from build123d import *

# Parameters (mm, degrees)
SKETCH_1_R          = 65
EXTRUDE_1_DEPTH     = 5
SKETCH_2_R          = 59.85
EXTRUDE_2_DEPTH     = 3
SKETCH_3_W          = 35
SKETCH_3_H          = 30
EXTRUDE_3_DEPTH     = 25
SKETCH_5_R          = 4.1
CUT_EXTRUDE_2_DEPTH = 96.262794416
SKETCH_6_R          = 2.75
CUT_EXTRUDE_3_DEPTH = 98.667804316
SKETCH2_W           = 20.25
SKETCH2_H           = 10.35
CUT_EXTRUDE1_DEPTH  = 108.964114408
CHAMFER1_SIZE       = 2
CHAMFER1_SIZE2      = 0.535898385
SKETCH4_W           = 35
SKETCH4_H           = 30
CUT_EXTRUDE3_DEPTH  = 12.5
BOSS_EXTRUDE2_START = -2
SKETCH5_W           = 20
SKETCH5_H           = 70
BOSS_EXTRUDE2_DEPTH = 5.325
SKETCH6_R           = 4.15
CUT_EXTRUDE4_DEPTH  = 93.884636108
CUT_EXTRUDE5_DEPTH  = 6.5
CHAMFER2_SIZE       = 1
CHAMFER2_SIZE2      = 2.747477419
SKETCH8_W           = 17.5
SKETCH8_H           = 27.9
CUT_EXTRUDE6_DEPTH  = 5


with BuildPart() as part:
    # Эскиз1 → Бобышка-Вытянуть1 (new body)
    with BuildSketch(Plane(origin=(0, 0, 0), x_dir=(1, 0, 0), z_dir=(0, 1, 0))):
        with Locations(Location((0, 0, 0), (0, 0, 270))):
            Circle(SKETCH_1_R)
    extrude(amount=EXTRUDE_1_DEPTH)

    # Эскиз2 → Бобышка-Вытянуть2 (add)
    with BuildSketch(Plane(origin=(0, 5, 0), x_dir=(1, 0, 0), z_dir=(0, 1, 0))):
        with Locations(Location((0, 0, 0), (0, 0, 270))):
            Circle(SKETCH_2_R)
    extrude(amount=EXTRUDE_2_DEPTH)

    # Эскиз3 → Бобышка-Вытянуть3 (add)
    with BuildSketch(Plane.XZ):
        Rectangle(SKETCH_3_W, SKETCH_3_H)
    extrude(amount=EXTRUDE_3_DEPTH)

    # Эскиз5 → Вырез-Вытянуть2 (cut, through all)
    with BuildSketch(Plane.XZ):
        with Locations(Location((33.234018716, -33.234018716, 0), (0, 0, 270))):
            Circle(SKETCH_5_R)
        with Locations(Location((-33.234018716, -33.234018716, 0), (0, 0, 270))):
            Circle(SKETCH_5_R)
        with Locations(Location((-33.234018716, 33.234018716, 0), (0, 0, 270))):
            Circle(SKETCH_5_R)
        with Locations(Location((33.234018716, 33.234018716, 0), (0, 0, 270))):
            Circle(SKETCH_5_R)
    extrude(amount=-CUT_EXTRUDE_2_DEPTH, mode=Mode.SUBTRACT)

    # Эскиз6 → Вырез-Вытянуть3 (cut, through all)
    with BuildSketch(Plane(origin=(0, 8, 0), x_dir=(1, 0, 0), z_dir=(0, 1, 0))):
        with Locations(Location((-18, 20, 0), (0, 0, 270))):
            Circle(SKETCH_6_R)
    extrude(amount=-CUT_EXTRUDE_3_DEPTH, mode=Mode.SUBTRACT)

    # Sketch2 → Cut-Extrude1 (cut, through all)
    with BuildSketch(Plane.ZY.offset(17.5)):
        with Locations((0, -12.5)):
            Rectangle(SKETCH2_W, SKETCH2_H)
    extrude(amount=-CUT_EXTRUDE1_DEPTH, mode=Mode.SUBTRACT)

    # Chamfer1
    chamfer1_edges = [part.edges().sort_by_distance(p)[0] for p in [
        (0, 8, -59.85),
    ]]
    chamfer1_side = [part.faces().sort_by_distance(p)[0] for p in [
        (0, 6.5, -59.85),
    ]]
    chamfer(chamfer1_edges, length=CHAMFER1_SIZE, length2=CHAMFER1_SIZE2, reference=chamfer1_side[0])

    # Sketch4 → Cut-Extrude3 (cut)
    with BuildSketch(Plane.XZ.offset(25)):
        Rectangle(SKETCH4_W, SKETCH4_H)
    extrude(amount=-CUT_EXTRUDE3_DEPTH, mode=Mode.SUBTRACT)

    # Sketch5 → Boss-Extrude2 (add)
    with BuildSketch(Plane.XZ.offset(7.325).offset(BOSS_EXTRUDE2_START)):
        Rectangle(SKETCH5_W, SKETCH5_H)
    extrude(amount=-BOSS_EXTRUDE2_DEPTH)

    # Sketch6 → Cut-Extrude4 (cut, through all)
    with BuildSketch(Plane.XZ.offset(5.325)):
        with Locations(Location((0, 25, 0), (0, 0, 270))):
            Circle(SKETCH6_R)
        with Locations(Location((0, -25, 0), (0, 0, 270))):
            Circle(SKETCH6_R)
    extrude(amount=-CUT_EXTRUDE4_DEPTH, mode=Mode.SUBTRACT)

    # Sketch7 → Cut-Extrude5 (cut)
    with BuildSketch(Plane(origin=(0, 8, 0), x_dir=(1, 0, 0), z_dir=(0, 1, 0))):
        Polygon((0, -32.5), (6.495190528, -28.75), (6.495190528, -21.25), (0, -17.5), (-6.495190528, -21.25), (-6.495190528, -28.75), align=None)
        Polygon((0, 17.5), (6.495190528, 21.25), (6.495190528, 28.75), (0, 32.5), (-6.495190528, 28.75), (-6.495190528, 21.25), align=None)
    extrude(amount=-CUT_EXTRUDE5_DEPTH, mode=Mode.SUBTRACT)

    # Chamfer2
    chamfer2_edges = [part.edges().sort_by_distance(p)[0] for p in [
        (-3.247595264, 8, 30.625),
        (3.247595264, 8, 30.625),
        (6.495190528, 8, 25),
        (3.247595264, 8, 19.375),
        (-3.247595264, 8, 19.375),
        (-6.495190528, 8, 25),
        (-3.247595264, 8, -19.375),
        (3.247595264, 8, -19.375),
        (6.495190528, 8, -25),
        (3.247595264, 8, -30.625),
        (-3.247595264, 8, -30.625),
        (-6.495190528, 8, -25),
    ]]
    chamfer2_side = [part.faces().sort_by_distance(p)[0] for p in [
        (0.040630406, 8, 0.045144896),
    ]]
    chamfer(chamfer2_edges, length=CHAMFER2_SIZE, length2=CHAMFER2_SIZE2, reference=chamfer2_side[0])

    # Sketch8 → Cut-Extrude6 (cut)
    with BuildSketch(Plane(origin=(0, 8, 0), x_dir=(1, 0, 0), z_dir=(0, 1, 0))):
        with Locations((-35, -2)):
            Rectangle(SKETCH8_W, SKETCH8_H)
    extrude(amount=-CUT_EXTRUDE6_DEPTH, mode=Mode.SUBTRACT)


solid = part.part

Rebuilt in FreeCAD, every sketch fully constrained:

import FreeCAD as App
import Part
import Sketcher
from FreeCAD import Vector
Q = App.Units.Quantity


def edges_at(feature, points):
    """Names of the edges that pass closest to the given points."""
    edges = feature.Shape.Edges
    near = lambda p: min(range(len(edges)), key=lambda i: edges[i].distToShape(Part.Vertex(*p))[0])
    return sorted({f"Edge{near(p) + 1}" for p in points})

doc = App.newDocument("Part")
body = doc.addObject("PartDesign::Body", "Body")

# Sketch on XZ plane
sketch1 = doc.addObject("Sketcher::SketchObject", "Sketch")
body.addObject(sketch1)
sketch1.AttachmentSupport = (doc.XZ_Plane, [""])
sketch1.MapMode = "FlatFace"
sketch1.addGeometry(Part.Circle(Vector(0, 0, 0), Vector(0, 0, 1), 65), False)
sketch1.addConstraint([
    Sketcher.Constraint("Coincident", 0, 3, -1, 1),
    Sketcher.Constraint("Diameter", 0, 130.0),
])
pad1 = doc.addObject("PartDesign::Pad", "Pad")
body.addObject(pad1)
pad1.Profile = sketch1
pad1.Length = 5
pad1.Reversed = True

# Sketch on XZ plane
sketch2 = doc.addObject("Sketcher::SketchObject", "Sketch001")
body.addObject(sketch2)
sketch2.AttachmentSupport = (doc.XZ_Plane, [""])
sketch2.MapMode = "FlatFace"
sketch2.AttachmentOffset = App.Placement(Vector(0, 0, -5), App.Rotation())
sketch2.addGeometry(Part.Circle(Vector(0, 0, 0), Vector(0, 0, 1), 60), False)
sketch2.addConstraint([
    Sketcher.Constraint("Coincident", 0, 3, -1, 1),
    Sketcher.Constraint("Diameter", 0, 119.7),
])
pad2 = doc.addObject("PartDesign::Pad", "Pad001")
body.addObject(pad2)
pad2.Profile = sketch2
pad2.Length = 3
pad2.Reversed = True

# Sketch on XZ plane
sketch3 = doc.addObject("Sketcher::SketchObject", "Sketch002")
body.addObject(sketch3)
sketch3.AttachmentSupport = (doc.XZ_Plane, [""])
sketch3.MapMode = "FlatFace"
sketch3.addGeometry([
    Part.LineSegment(Vector(-18, 15, 0), Vector(-18, -15, 0)),
    Part.LineSegment(Vector(-18, -15, 0), Vector(18, -15, 0)),
    Part.LineSegment(Vector(18, -15, 0), Vector(18, 15, 0)),
    Part.LineSegment(Vector(18, 15, 0), Vector(-18, 15, 0)),
], False)
sketch3.addConstraint([
    Sketcher.Constraint("Coincident", 0, 2, 1, 1),
    Sketcher.Constraint("Coincident", 1, 2, 2, 1),
    Sketcher.Constraint("Coincident", 2, 2, 3, 1),
    Sketcher.Constraint("Coincident", 3, 2, 0, 1),
    Sketcher.Constraint("Vertical", 0),
    Sketcher.Constraint("Horizontal", 1),
    Sketcher.Constraint("Vertical", 2),
    Sketcher.Constraint("Horizontal", 3),
    Sketcher.Constraint("Symmetric", 0, 2, 2, 2, -1, 1),
    Sketcher.Constraint("DistanceX", 1, 1, 1, 2, 35.0),
    Sketcher.Constraint("DistanceY", 0, 2, 0, 1, 30.0),
])
pad3 = doc.addObject("PartDesign::Pad", "Pad002")
body.addObject(pad3)
pad3.Profile = sketch3
pad3.Length = 25

# Sketch on XZ plane
sketch4 = doc.addObject("Sketcher::SketchObject", "Sketch003")
body.addObject(sketch4)
sketch4.AttachmentSupport = (doc.XZ_Plane, [""])
sketch4.MapMode = "FlatFace"
sketch4.addGeometry([
    Part.Circle(Vector(33.2, -33.2, 0), Vector(0, 0, 1), 4.1),
    Part.Circle(Vector(-33.2, -33.2, 0), Vector(0, 0, 1), 4.1),
    Part.Circle(Vector(-33.2, 33.2, 0), Vector(0, 0, 1), 4.1),
    Part.Circle(Vector(33.2, 33.2, 0), Vector(0, 0, 1), 4.1),
], False)
sketch4.addConstraint([
    Sketcher.Constraint("Equal", 0, 1),
    Sketcher.Constraint("Equal", 1, 2),
    Sketcher.Constraint("Equal", 2, 3),
    Sketcher.Constraint("Symmetric", 0, 3, 2, 3, -1, 1),
    Sketcher.Constraint("Symmetric", 1, 3, 3, 3, -1, 1),
    Sketcher.Constraint("Symmetric", 0, 3, 1, 3, -2),
    Sketcher.Constraint("Diameter", 0, 8.2),
    Sketcher.Constraint("DistanceX", -1, 1, 0, 3, 33.234019),
    Sketcher.Constraint("DistanceY", 0, 3, -1, 1, 33.234019),
])
pocket1 = doc.addObject("PartDesign::Pocket", "Pocket")
body.addObject(pocket1)
pocket1.Profile = sketch4
pocket1.Type = "ThroughAll"

# Sketch on XZ plane
sketch5 = doc.addObject("Sketcher::SketchObject", "Sketch004")
body.addObject(sketch5)
sketch5.AttachmentSupport = (doc.XZ_Plane, [""])
sketch5.MapMode = "FlatFace"
sketch5.AttachmentOffset = App.Placement(Vector(0, 0, -8), App.Rotation())
sketch5.addGeometry(Part.Circle(Vector(-18, -20, 0), Vector(0, 0, 1), 2.8), False)
sketch5.addConstraint([
    Sketcher.Constraint("Diameter", 0, 5.5),
    Sketcher.Constraint("DistanceX", 0, 3, -1, 1, 18.0),
    Sketcher.Constraint("DistanceY", 0, 3, -1, 1, 20.0),
])
pocket2 = doc.addObject("PartDesign::Pocket", "Pocket001")
body.addObject(pocket2)
pocket2.Profile = sketch5
pocket2.Type = "ThroughAll"
pocket2.Reversed = True

# Sketch on YZ plane
sketch6 = doc.addObject("Sketcher::SketchObject", "Sketch005")
body.addObject(sketch6)
sketch6.AttachmentSupport = (doc.YZ_Plane, [""])
sketch6.MapMode = "FlatFace"
sketch6.AttachmentOffset = App.Placement(Vector(0, 0, -17.5), App.Rotation())
sketch6.addGeometry([
    Part.LineSegment(Vector(-7, -10, 0), Vector(-18, -10, 0)),
    Part.LineSegment(Vector(-18, -10, 0), Vector(-18, 10, 0)),
    Part.LineSegment(Vector(-18, 10, 0), Vector(-7, 10, 0)),
    Part.LineSegment(Vector(-7, 10, 0), Vector(-7, -10, 0)),
], False)
sketch6.addConstraint([
    Sketcher.Constraint("Coincident", 0, 2, 1, 1),
    Sketcher.Constraint("Coincident", 1, 2, 2, 1),
    Sketcher.Constraint("Coincident", 2, 2, 3, 1),
    Sketcher.Constraint("Coincident", 3, 2, 0, 1),
    Sketcher.Constraint("Horizontal", 0),
    Sketcher.Constraint("Vertical", 1),
    Sketcher.Constraint("Horizontal", 2),
    Sketcher.Constraint("Vertical", 3),
    Sketcher.Constraint("DistanceX", 0, 2, 0, 1, 10.35),
    Sketcher.Constraint("DistanceY", 1, 1, 1, 2, 20.25),
    Sketcher.Constraint("DistanceX", 0, 2, -1, 1, 17.675),
    Sketcher.Constraint("DistanceY", 0, 2, -1, 1, 10.125),
])
pocket3 = doc.addObject("PartDesign::Pocket", "Pocket002")
body.addObject(pocket3)
pocket3.Profile = sketch6
pocket3.Type = "ThroughAll"
pocket3.Reversed = True
doc.recompute()

chamfer = doc.addObject("PartDesign::Chamfer", "Chamfer")
body.addObject(chamfer)
chamfer.Base = (pocket3, edges_at(pocket3, [(0, 8, -59.85)]))
chamfer.ChamferType = "Two distances"
chamfer.Size = 2
chamfer.Size2 = 0.535898

# Sketch on XZ plane
sketch7 = doc.addObject("Sketcher::SketchObject", "Sketch006")
body.addObject(sketch7)
sketch7.AttachmentSupport = (doc.XZ_Plane, [""])
sketch7.MapMode = "FlatFace"
sketch7.AttachmentOffset = App.Placement(Vector(0, 0, 25), App.Rotation())
sketch7.addGeometry([
    Part.LineSegment(Vector(-18, 15, 0), Vector(-18, -15, 0)),
    Part.LineSegment(Vector(-18, -15, 0), Vector(18, -15, 0)),
    Part.LineSegment(Vector(18, -15, 0), Vector(18, 15, 0)),
    Part.LineSegment(Vector(18, 15, 0), Vector(-18, 15, 0)),
], False)
sketch7.addConstraint([
    Sketcher.Constraint("Coincident", 0, 2, 1, 1),
    Sketcher.Constraint("Coincident", 1, 2, 2, 1),
    Sketcher.Constraint("Coincident", 2, 2, 3, 1),
    Sketcher.Constraint("Coincident", 3, 2, 0, 1),
    Sketcher.Constraint("Vertical", 0),
    Sketcher.Constraint("Horizontal", 1),
    Sketcher.Constraint("Vertical", 2),
    Sketcher.Constraint("Horizontal", 3),
    Sketcher.Constraint("Symmetric", 0, 2, 2, 2, -1, 1),
    Sketcher.Constraint("DistanceX", 1, 1, 1, 2, 35.0),
    Sketcher.Constraint("DistanceY", 0, 2, 0, 1, 30.0),
])
pocket4 = doc.addObject("PartDesign::Pocket", "Pocket003")
body.addObject(pocket4)
pocket4.Profile = sketch7
pocket4.Length = 12.5

# Sketch on XZ plane
sketch8 = doc.addObject("Sketcher::SketchObject", "Sketch007")
body.addObject(sketch8)
sketch8.AttachmentSupport = (doc.XZ_Plane, [""])
sketch8.MapMode = "FlatFace"
sketch8.AttachmentOffset = App.Placement(Vector(0, 0, 5.325), App.Rotation())
sketch8.addGeometry([
    Part.LineSegment(Vector(-10, 35, 0), Vector(-10, -35, 0)),
    Part.LineSegment(Vector(-10, -35, 0), Vector(10, -35, 0)),
    Part.LineSegment(Vector(10, -35, 0), Vector(10, 35, 0)),
    Part.LineSegment(Vector(10, 35, 0), Vector(-10, 35, 0)),
], False)
sketch8.addConstraint([
    Sketcher.Constraint("Coincident", 0, 2, 1, 1),
    Sketcher.Constraint("Coincident", 1, 2, 2, 1),
    Sketcher.Constraint("Coincident", 2, 2, 3, 1),
    Sketcher.Constraint("Coincident", 3, 2, 0, 1),
    Sketcher.Constraint("Vertical", 0),
    Sketcher.Constraint("Horizontal", 1),
    Sketcher.Constraint("Vertical", 2),
    Sketcher.Constraint("Horizontal", 3),
    Sketcher.Constraint("Symmetric", 0, 2, 2, 2, -1, 1),
    Sketcher.Constraint("DistanceX", 1, 1, 1, 2, 20.0),
    Sketcher.Constraint("DistanceY", 0, 2, 0, 1, 70.0),
])
pad4 = doc.addObject("PartDesign::Pad", "Pad003")
body.addObject(pad4)
pad4.Profile = sketch8
pad4.Length = 5.325
pad4.Reversed = True

# Sketch on XZ plane
sketch9 = doc.addObject("Sketcher::SketchObject", "Sketch008")
body.addObject(sketch9)
sketch9.AttachmentSupport = (doc.XZ_Plane, [""])
sketch9.MapMode = "FlatFace"
sketch9.AttachmentOffset = App.Placement(Vector(0, 0, 5.325), App.Rotation())
sketch9.addGeometry([
    Part.Circle(Vector(0, 25, 0), Vector(0, 0, 1), 4.2),
    Part.Circle(Vector(0, -25, 0), Vector(0, 0, 1), 4.2),
], False)
sketch9.addConstraint([
    Sketcher.Constraint("Equal", 0, 1),
    Sketcher.Constraint("Symmetric", 0, 3, 1, 3, -1, 1),
    Sketcher.Constraint("PointOnObject", 0, 3, -2),
    Sketcher.Constraint("Diameter", 0, 8.3),
    Sketcher.Constraint("DistanceY", -1, 1, 0, 3, 25.0),
])
pocket5 = doc.addObject("PartDesign::Pocket", "Pocket004")
body.addObject(pocket5)
pocket5.Profile = sketch9
pocket5.Type = "ThroughAll"

# Sketch on XZ plane
sketch10 = doc.addObject("Sketcher::SketchObject", "Sketch009")
body.addObject(sketch10)
sketch10.AttachmentSupport = (doc.XZ_Plane, [""])
sketch10.MapMode = "FlatFace"
sketch10.AttachmentOffset = App.Placement(Vector(0, 0, -8), App.Rotation())
sketch10.addGeometry([
    Part.LineSegment(Vector(0, 32, 0), Vector(6, 29, 0)),  # 0
    Part.LineSegment(Vector(6, 29, 0), Vector(6, 21, 0)),  # 1
    Part.LineSegment(Vector(6, 21, 0), Vector(0, 18, 0)),  # 2
    Part.LineSegment(Vector(0, 18, 0), Vector(-6, 21, 0)),  # 3
    Part.LineSegment(Vector(-6, 21, 0), Vector(-6, 29, 0)),  # 4
    Part.LineSegment(Vector(-6, 29, 0), Vector(0, 32, 0)),  # 5
    Part.LineSegment(Vector(0, -18, 0), Vector(6, -21, 0)),  # 6
    Part.LineSegment(Vector(6, -21, 0), Vector(6, -29, 0)),  # 7
    Part.LineSegment(Vector(6, -29, 0), Vector(0, -32, 0)),  # 8
    Part.LineSegment(Vector(0, -32, 0), Vector(-6, -29, 0)),  # 9
    Part.LineSegment(Vector(-6, -29, 0), Vector(-6, -21, 0)),  # 10
    Part.LineSegment(Vector(-6, -21, 0), Vector(0, -18, 0)),  # 11
], False)
sketch10.addConstraint([
    Sketcher.Constraint("Coincident", 0, 2, 1, 1),
    Sketcher.Constraint("Coincident", 1, 2, 2, 1),
    Sketcher.Constraint("Coincident", 2, 2, 3, 1),
    Sketcher.Constraint("Coincident", 3, 2, 4, 1),
    Sketcher.Constraint("Coincident", 4, 2, 5, 1),
    Sketcher.Constraint("Coincident", 5, 2, 0, 1),
    Sketcher.Constraint("Coincident", 6, 2, 7, 1),
    Sketcher.Constraint("Coincident", 7, 2, 8, 1),
    Sketcher.Constraint("Coincident", 8, 2, 9, 1),
    Sketcher.Constraint("Coincident", 9, 2, 10, 1),
    Sketcher.Constraint("Coincident", 10, 2, 11, 1),
    Sketcher.Constraint("Coincident", 11, 2, 6, 1),
    Sketcher.Constraint("Vertical", 1),
    Sketcher.Constraint("Vertical", 4),
    Sketcher.Constraint("Vertical", 7),
    Sketcher.Constraint("Vertical", 10),
    Sketcher.Constraint("Symmetric", 3, 2, 6, 2, -1, 1),
    Sketcher.Constraint("Symmetric", 5, 2, 8, 2, -1, 1),
    Sketcher.Constraint("Symmetric", 0, 2, 9, 2, -1, 1),
    Sketcher.Constraint("Symmetric", 2, 2, 11, 2, -1, 1),
    Sketcher.Constraint("Symmetric", 1, 2, 3, 2, -2),
    Sketcher.Constraint("PointOnObject", 2, 2, -2),
    Sketcher.Constraint("PointOnObject", 5, 2, -2),
    Sketcher.Constraint("Parallel", 0, 3),
    Sketcher.Constraint("Parallel", 2, 5),
    Sketcher.Constraint("Parallel", 5, 8),
    Sketcher.Constraint("Parallel", 8, 11),
    Sketcher.Constraint("Angle", 0, Q("-30 deg")),
    Sketcher.Constraint("DistanceY", 1, 2, 1, 1, 7.5),
    Sketcher.Constraint("DistanceY", 2, 2, 5, 2, 15.0),
    Sketcher.Constraint("DistanceY", 6, 2, 0, 2, 50.0),
])
pocket6 = doc.addObject("PartDesign::Pocket", "Pocket005")
body.addObject(pocket6)
pocket6.Profile = sketch10
pocket6.Length = 6.5
pocket6.Reversed = True
doc.recompute()

chamfer2 = doc.addObject("PartDesign::Chamfer", "Chamfer001")
body.addObject(chamfer2)
chamfer2.Base = (pocket6, edges_at(pocket6, [
    (-3.248, 8, 30.625),
    (3.248, 8, 30.625),
    (6.495, 8, 25),
    (3.248, 8, 19.375),
    (-3.248, 8, 19.375),
    (-6.495, 8, 25),
    (-3.248, 8, -19.375),
    (3.248, 8, -19.375),
    (6.495, 8, -25),
    (3.248, 8, -30.625),
    (-3.248, 8, -30.625),
    (-6.495, 8, -25),
]))
chamfer2.ChamferType = "Two distances"
chamfer2.Size = 1
chamfer2.Size2 = 2.747477

# Sketch on XZ plane
sketch11 = doc.addObject("Sketcher::SketchObject", "Sketch010")
body.addObject(sketch11)
sketch11.AttachmentSupport = (doc.XZ_Plane, [""])
sketch11.MapMode = "FlatFace"
sketch11.AttachmentOffset = App.Placement(Vector(0, 0, -8), App.Rotation())
sketch11.addGeometry([
    Part.LineSegment(Vector(-44, -12, 0), Vector(-44, 16, 0)),
    Part.LineSegment(Vector(-44, 16, 0), Vector(-26, 16, 0)),
    Part.LineSegment(Vector(-26, 16, 0), Vector(-26, -12, 0)),
    Part.LineSegment(Vector(-26, -12, 0), Vector(-44, -12, 0)),
], False)
sketch11.addConstraint([
    Sketcher.Constraint("Coincident", 0, 2, 1, 1),
    Sketcher.Constraint("Coincident", 1, 2, 2, 1),
    Sketcher.Constraint("Coincident", 2, 2, 3, 1),
    Sketcher.Constraint("Coincident", 3, 2, 0, 1),
    Sketcher.Constraint("Vertical", 0),
    Sketcher.Constraint("Horizontal", 1),
    Sketcher.Constraint("Vertical", 2),
    Sketcher.Constraint("Horizontal", 3),
    Sketcher.Constraint("DistanceX", 1, 1, 1, 2, 17.5),
    Sketcher.Constraint("DistanceY", 0, 1, 0, 2, 27.9),
    Sketcher.Constraint("DistanceX", 0, 2, -1, 1, 43.75),
    Sketcher.Constraint("DistanceY", -1, 1, 0, 2, 15.95),
])
pocket7 = doc.addObject("PartDesign::Pocket", "Pocket006")
body.addObject(pocket7)
pocket7.Profile = sketch11
pocket7.Length = 5
pocket7.Reversed = True

doc.recompute()
